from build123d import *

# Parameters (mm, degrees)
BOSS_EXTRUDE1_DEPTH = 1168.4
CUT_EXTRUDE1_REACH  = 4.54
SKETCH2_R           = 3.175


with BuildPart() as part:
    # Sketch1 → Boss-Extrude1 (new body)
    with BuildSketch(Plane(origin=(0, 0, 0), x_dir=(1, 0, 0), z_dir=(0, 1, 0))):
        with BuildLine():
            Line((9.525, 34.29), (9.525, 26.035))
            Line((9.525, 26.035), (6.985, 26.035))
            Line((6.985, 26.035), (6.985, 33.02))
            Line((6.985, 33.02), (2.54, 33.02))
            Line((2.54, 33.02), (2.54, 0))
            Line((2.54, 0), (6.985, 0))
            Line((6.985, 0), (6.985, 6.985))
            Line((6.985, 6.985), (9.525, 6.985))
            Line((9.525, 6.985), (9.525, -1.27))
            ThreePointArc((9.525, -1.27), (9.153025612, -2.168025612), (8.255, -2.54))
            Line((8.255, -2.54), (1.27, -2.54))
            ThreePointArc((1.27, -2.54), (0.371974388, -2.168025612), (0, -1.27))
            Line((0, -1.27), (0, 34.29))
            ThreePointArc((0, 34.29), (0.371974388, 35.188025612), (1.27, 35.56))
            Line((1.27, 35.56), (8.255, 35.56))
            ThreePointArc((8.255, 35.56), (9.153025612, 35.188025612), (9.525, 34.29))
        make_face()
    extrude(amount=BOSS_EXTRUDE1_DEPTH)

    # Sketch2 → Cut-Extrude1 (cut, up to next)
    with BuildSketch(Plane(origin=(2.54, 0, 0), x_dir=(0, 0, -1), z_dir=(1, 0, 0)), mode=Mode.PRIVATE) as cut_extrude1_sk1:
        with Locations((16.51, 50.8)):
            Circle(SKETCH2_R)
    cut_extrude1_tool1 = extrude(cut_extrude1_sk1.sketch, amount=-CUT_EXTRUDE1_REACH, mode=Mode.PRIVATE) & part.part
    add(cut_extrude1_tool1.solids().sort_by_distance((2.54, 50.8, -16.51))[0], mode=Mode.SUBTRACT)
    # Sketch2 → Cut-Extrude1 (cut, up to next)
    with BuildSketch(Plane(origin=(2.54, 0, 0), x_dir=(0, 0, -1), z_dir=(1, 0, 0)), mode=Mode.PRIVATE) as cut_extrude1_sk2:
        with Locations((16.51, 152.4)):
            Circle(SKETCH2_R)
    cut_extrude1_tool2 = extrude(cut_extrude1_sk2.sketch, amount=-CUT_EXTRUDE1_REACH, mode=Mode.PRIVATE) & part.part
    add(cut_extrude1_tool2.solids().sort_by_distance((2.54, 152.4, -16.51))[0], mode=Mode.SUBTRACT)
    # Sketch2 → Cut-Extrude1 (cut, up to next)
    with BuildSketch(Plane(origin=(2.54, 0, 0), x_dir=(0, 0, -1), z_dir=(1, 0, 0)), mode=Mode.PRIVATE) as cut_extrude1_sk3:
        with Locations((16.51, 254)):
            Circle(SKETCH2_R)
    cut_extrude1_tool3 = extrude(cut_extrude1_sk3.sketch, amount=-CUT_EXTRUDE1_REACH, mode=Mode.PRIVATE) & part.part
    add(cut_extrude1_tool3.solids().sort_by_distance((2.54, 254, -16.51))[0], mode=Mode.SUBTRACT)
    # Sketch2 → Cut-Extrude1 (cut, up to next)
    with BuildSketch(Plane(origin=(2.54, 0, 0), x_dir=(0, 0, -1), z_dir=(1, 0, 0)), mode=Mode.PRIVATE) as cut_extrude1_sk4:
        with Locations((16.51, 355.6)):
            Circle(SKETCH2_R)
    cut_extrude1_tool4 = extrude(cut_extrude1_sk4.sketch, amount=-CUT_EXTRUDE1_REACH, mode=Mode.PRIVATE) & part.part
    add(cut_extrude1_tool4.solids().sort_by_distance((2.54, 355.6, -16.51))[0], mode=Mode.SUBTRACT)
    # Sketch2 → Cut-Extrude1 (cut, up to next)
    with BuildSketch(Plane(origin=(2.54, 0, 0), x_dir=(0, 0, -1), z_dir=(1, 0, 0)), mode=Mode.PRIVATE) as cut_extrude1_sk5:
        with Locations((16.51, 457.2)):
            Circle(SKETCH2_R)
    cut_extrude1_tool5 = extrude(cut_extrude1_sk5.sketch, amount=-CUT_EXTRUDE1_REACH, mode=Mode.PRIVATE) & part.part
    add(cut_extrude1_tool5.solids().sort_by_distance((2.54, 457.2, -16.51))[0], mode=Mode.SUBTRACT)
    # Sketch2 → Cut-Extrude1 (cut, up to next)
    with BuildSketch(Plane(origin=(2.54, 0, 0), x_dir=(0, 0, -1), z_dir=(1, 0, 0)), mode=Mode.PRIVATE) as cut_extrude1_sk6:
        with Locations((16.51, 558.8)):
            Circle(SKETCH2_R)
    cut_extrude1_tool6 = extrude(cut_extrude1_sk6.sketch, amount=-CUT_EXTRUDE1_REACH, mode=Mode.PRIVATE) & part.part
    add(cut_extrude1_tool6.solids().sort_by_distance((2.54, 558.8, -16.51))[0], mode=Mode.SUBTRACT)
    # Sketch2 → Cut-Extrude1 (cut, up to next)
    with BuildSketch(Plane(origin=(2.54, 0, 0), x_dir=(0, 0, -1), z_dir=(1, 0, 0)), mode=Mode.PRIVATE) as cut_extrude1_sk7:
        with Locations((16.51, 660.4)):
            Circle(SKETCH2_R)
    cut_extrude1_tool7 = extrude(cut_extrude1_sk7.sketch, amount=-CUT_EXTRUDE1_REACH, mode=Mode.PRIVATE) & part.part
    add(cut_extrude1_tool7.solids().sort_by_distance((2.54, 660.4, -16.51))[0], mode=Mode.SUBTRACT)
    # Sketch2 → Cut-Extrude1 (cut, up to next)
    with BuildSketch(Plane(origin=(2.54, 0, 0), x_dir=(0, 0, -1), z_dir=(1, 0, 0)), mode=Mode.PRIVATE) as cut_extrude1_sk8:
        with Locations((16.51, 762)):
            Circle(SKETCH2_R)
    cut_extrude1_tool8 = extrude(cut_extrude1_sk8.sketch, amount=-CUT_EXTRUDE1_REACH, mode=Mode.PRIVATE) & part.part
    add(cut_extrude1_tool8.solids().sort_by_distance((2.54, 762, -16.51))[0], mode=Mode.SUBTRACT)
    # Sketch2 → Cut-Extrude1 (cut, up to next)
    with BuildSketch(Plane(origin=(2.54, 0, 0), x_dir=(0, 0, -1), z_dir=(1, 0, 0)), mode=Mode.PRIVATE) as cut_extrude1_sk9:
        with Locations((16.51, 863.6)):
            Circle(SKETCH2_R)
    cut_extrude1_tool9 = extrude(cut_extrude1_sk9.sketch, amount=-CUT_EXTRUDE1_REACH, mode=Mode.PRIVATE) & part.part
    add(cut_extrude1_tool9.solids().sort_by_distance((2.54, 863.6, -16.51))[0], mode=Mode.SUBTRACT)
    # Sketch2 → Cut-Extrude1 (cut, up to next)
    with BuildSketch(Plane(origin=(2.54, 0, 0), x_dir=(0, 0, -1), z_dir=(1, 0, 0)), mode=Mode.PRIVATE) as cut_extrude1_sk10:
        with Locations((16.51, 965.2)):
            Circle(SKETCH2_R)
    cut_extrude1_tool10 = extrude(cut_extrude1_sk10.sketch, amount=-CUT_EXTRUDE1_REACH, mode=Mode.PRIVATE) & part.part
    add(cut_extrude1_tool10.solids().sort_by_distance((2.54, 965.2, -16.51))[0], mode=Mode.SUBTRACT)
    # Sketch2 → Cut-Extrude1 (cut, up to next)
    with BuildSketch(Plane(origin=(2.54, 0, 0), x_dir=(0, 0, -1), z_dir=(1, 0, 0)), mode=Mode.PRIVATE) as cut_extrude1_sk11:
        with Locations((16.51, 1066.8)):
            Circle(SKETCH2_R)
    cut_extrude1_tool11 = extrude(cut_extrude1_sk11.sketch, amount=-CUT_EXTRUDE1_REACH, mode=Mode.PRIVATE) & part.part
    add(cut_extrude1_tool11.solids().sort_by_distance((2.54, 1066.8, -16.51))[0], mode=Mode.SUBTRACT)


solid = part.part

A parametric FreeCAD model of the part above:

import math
import FreeCAD as App
import Part
import Sketcher

V = App.Vector
Q = App.Units.Quantity

doc = App.newDocument("Part")
params = doc.addObject("Spreadsheet::Sheet", "Params")
for row, (alias, value) in enumerate([
    ("sketch1_radius", "0.05 in"),
    ("sketch1_width", "0.1 in"),
    ("sketch1_height", "1.4 in"),
    ("sketch1_height2", "1.3 in"),
    ("sketch1_width2", "0.275 in"),
    ("pad1_length", "46 in"),
    ("sketch2_diameter", "0.25 in"),
    ("sketch3_diameter", "0.25 in"),
    ("sketch4_diameter", "0.25 in"),
    ("sketch5_diameter", "0.25 in"),
    ("sketch6_diameter", "0.25 in"),
    ("sketch7_diameter", "0.25 in"),
    ("sketch8_diameter", "0.25 in"),
    ("sketch9_diameter", "0.25 in"),
    ("sketch10_diameter", "0.25 in"),
    ("sketch11_diameter", "0.25 in"),
    ("sketch12_diameter", "0.25 in"),
], start=1):
    params.set(f"A{row}", alias)
    params.set(f"B{row}", "=" + value)
    params.setAlias(f"B{row}", alias)

body = doc.addObject("PartDesign::Body", "Body")

# Sketch on XZ plane
sketch1 = body.newObject("Sketcher::SketchObject", "Sketch")
sketch1.AttachmentSupport = (doc.getObject("XZ_Plane"), [""])
sketch1.MapMode = "FlatFace"
sketch1.addGeometry(Part.LineSegment(V(9.525, -26.035, 0), V(9.525, -34.29, 0)), False)
sketch1.addGeometry(Part.ArcOfCircle(Part.Circle(V(8.255, -34.29, 0), V(0, 0, 1), 1.27), math.radians(-90), math.radians(0)), False)
sketch1.addGeometry(Part.LineSegment(V(8.255, -35.56, 0), V(1.27, -35.56, 0)), False)
sketch1.addGeometry(Part.ArcOfCircle(Part.Circle(V(1.27, -34.29, 0), V(0, 0, 1), 1.27), math.radians(180), math.radians(270)), False)
sketch1.addGeometry(Part.LineSegment(V(0, -34.29, 0), V(0, 1.27, 0)), False)
sketch1.addGeometry(Part.ArcOfCircle(Part.Circle(V(1.27, 1.27, 0), V(0, 0, 1), 1.27), math.radians(90), math.radians(180)), False)
sketch1.addGeometry(Part.LineSegment(V(1.27, 2.54, 0), V(8.255, 2.54, 0)), False)
sketch1.addGeometry(Part.ArcOfCircle(Part.Circle(V(8.255, 1.27, 0), V(0, 0, 1), 1.27), math.radians(0), math.radians(90)), False)
sketch1.addGeometry(Part.LineSegment(V(9.525, 1.27, 0), V(9.525, -6.985, 0)), False)
sketch1.addGeometry(Part.LineSegment(V(9.525, -6.985, 0), V(6.985, -6.985, 0)), False)
sketch1.addGeometry(Part.LineSegment(V(6.985, -6.985, 0), V(6.985, 0, 0)), False)
sketch1.addGeometry(Part.LineSegment(V(6.985, 0, 0), V(2.54, 0, 0)), False)
sketch1.addGeometry(Part.LineSegment(V(2.54, 0, 0), V(2.54, -33.02, 0)), False)
sketch1.addGeometry(Part.LineSegment(V(2.54, -33.02, 0), V(6.985, -33.02, 0)), False)
sketch1.addGeometry(Part.LineSegment(V(6.985, -33.02, 0), V(6.985, -26.035, 0)), False)
sketch1.addGeometry(Part.LineSegment(V(6.985, -26.035, 0), V(9.525, -26.035, 0)), False)
sketch1.addConstraint(Sketcher.Constraint("Tangent", 0, 2, 1, 2))
sketch1.addConstraint(Sketcher.Constraint("Tangent", 1, 1, 2, 1))
sketch1.addConstraint(Sketcher.Constraint("Tangent", 2, 2, 3, 2))
sketch1.addConstraint(Sketcher.Constraint("Tangent", 3, 1, 4, 1))
sketch1.addConstraint(Sketcher.Constraint("Tangent", 4, 2, 5, 2))
sketch1.addConstraint(Sketcher.Constraint("Tangent", 5, 1, 6, 1))
sketch1.addConstraint(Sketcher.Constraint("Tangent", 6, 2, 7, 2))
sketch1.addConstraint(Sketcher.Constraint("Tangent", 7, 1, 8, 1))
sketch1.addConstraint(Sketcher.Constraint("Coincident", 8, 2, 9, 1))
sketch1.addConstraint(Sketcher.Constraint("Coincident", 9, 2, 10, 1))
sketch1.addConstraint(Sketcher.Constraint("Coincident", 10, 2, 11, 1))
sketch1.addConstraint(Sketcher.Constraint("Coincident", 11, 2, 12, 1))
sketch1.addConstraint(Sketcher.Constraint("Coincident", 12, 2, 13, 1))
sketch1.addConstraint(Sketcher.Constraint("Coincident", 13, 2, 14, 1))
sketch1.addConstraint(Sketcher.Constraint("Coincident", 14, 2, 15, 1))
sketch1.addConstraint(Sketcher.Constraint("Coincident", 15, 2, 0, 1))
sketch1.addConstraint(Sketcher.Constraint("Vertical", 0))
sketch1.addConstraint(Sketcher.Constraint("Horizontal", 2))
sketch1.addConstraint(Sketcher.Constraint("Vertical", 4))
sketch1.addConstraint(Sketcher.Constraint("Horizontal", 6))
sketch1.addConstraint(Sketcher.Constraint("Vertical", 8))
sketch1.addConstraint(Sketcher.Constraint("Horizontal", 9))
sketch1.addConstraint(Sketcher.Constraint("Vertical", 10))
sketch1.addConstraint(Sketcher.Constraint("Horizontal", 11))
sketch1.addConstraint(Sketcher.Constraint("Vertical", 12))
sketch1.addConstraint(Sketcher.Constraint("Horizontal", 13))
sketch1.addConstraint(Sketcher.Constraint("Vertical", 14))
sketch1.addConstraint(Sketcher.Constraint("Horizontal", 15))
sketch1.addConstraint(Sketcher.Constraint("Equal", 1, 3))
sketch1.addConstraint(Sketcher.Constraint("Equal", 3, 5))
sketch1.addConstraint(Sketcher.Constraint("Equal", 5, 7))
sketch1.addConstraint(Sketcher.Constraint("PointOnObject", 3, 1, -2))
sketch1.addConstraint(Sketcher.Constraint("PointOnObject", 10, 2, -1))
sketch1.addConstraint(Sketcher.Constraint("Vertical", 1, 3, 7, 3))
sketch1.addConstraint(Sketcher.Constraint("Vertical", 10, 2, 13, 2))
sketch1.addConstraint(Sketcher.Constraint("Equal", 0, 8))
sketch1.addConstraint(Sketcher.Constraint("Equal", 6, 10))
sketch1.addConstraint(Sketcher.Constraint("Equal", 10, 14))
sketch1.addConstraint(Sketcher.Constraint("Radius", 1, Q("0.05 in")))
sketch1.addConstraint(Sketcher.Constraint("DistanceX", 9, 2, 9, 1, Q("0.1 in")))
sketch1.addConstraint(Sketcher.Constraint("DistanceY", 4, 1, 4, 2, Q("1.4 in")))
sketch1.addConstraint(Sketcher.Constraint("DistanceY", 12, 2, 12, 1, Q("1.3 in")))
sketch1.addConstraint(Sketcher.Constraint("DistanceX", -1, 1, 11, 2, Q("0.1 in")))
sketch1.addConstraint(Sketcher.Constraint("DistanceX", 2, 2, 2, 1, Q("0.275 in")))
sketch1.setExpression("Constraints[38]", "Params.sketch1_radius")
sketch1.setExpression("Constraints[39]", "Params.sketch1_width")
sketch1.setExpression("Constraints[40]", "Params.sketch1_height")
sketch1.setExpression("Constraints[41]", "Params.sketch1_height2")
sketch1.setExpression("Constraints[43]", "Params.sketch1_width2")
pad1 = body.newObject("PartDesign::Pad", "Pad")
pad1.Profile = sketch1
pad1.setExpression("Length", "Params.pad1_length")
pad1.Reversed = True

# Sketch on YZ plane
sketch2 = body.newObject("Sketcher::SketchObject", "Sketch001")
sketch2.AttachmentSupport = (doc.getObject("YZ_Plane"), [""])
sketch2.MapMode = "FlatFace"
sketch2.AttachmentOffset = App.Placement(V(0, 0, 0.1 * 25.4), App.Rotation())
sketch2.addGeometry(Part.Circle(V(50.8, -16.51, 0), V(0, 0, 1), 3.175), False)
sketch2.addConstraint(Sketcher.Constraint("Diameter", 0, Q("0.25 in")))
sketch2.addConstraint(Sketcher.Constraint("DistanceX", -1, 1, 0, 3, Q("2 in")))
sketch2.addConstraint(Sketcher.Constraint("DistanceY", 0, 3, -1, 1, Q("0.65 in")))
sketch2.setExpression("Constraints[0]", "Params.sketch2_diameter")
pocket1 = body.newObject("PartDesign::Pocket", "Pocket")
pocket1.Profile = sketch2
pocket1.Type = "UpToFirst"

# Sketch on YZ plane
sketch3 = body.newObject("Sketcher::SketchObject", "Sketch002")
sketch3.AttachmentSupport = (doc.getObject("YZ_Plane"), [""])
sketch3.MapMode = "FlatFace"
sketch3.AttachmentOffset = App.Placement(V(0, 0, 0.1 * 25.4), App.Rotation())
sketch3.addGeometry(Part.Circle(V(152.4, -16.51, 0), V(0, 0, 1), 3.175), False)
sketch3.addConstraint(Sketcher.Constraint("Diameter", 0, Q("0.25 in")))
sketch3.addConstraint(Sketcher.Constraint("DistanceX", -1, 1, 0, 3, Q("6 in")))
sketch3.addConstraint(Sketcher.Constraint("DistanceY", 0, 3, -1, 1, Q("0.65 in")))
sketch3.setExpression("Constraints[0]", "Params.sketch3_diameter")
pocket2 = body.newObject("PartDesign::Pocket", "Pocket001")
pocket2.Profile = sketch3
pocket2.Type = "UpToFirst"

# Sketch on YZ plane
sketch4 = body.newObject("Sketcher::SketchObject", "Sketch003")
sketch4.AttachmentSupport = (doc.getObject("YZ_Plane"), [""])
sketch4.MapMode = "FlatFace"
sketch4.AttachmentOffset = App.Placement(V(0, 0, 0.1 * 25.4), App.Rotation())
sketch4.addGeometry(Part.Circle(V(254, -16.51, 0), V(0, 0, 1), 3.175), False)
sketch4.addConstraint(Sketcher.Constraint("Diameter", 0, Q("0.25 in")))
sketch4.addConstraint(Sketcher.Constraint("DistanceX", -1, 1, 0, 3, Q("10 in")))
sketch4.addConstraint(Sketcher.Constraint("DistanceY", 0, 3, -1, 1, Q("0.65 in")))
sketch4.setExpression("Constraints[0]", "Params.sketch4_diameter")
pocket3 = body.newObject("PartDesign::Pocket", "Pocket002")
pocket3.Profile = sketch4
pocket3.Type = "UpToFirst"

# Sketch on YZ plane
sketch5 = body.newObject("Sketcher::SketchObject", "Sketch004")
sketch5.AttachmentSupport = (doc.getObject("YZ_Plane"), [""])
sketch5.MapMode = "FlatFace"
sketch5.AttachmentOffset = App.Placement(V(0, 0, 0.1 * 25.4), App.Rotation())
sketch5.addGeometry(Part.Circle(V(355.6, -16.51, 0), V(0, 0, 1), 3.175), False)
sketch5.addConstraint(Sketcher.Constraint("Diameter", 0, Q("0.25 in")))
sketch5.addConstraint(Sketcher.Constraint("DistanceX", -1, 1, 0, 3, Q("14 in")))
sketch5.addConstraint(Sketcher.Constraint("DistanceY", 0, 3, -1, 1, Q("0.65 in")))
sketch5.setExpression("Constraints[0]", "Params.sketch5_diameter")
pocket4 = body.newObject("PartDesign::Pocket", "Pocket003")
pocket4.Profile = sketch5
pocket4.Type = "UpToFirst"

# Sketch on YZ plane
sketch6 = body.newObject("Sketcher::SketchObject", "Sketch005")
sketch6.AttachmentSupport = (doc.getObject("YZ_Plane"), [""])
sketch6.MapMode = "FlatFace"
sketch6.AttachmentOffset = App.Placement(V(0, 0, 0.1 * 25.4), App.Rotation())
sketch6.addGeometry(Part.Circle(V(457.2, -16.51, 0), V(0, 0, 1), 3.175), False)
sketch6.addConstraint(Sketcher.Constraint("Diameter", 0, Q("0.25 in")))
sketch6.addConstraint(Sketcher.Constraint("DistanceX", -1, 1, 0, 3, Q("18 in")))
sketch6.addConstraint(Sketcher.Constraint("DistanceY", 0, 3, -1, 1, Q("0.65 in")))
sketch6.setExpression("Constraints[0]", "Params.sketch6_diameter")
pocket5 = body.newObject("PartDesign::Pocket", "Pocket004")
pocket5.Profile = sketch6
pocket5.Type = "UpToFirst"

# Sketch on YZ plane
sketch7 = body.newObject("Sketcher::SketchObject", "Sketch006")
sketch7.AttachmentSupport = (doc.getObject("YZ_Plane"), [""])
sketch7.MapMode = "FlatFace"
sketch7.AttachmentOffset = App.Placement(V(0, 0, 0.1 * 25.4), App.Rotation())
sketch7.addGeometry(Part.Circle(V(558.8, -16.51, 0), V(0, 0, 1), 3.175), False)
sketch7.addConstraint(Sketcher.Constraint("Diameter", 0, Q("0.25 in")))
sketch7.addConstraint(Sketcher.Constraint("DistanceX", -1, 1, 0, 3, Q("22 in")))
sketch7.addConstraint(Sketcher.Constraint("DistanceY", 0, 3, -1, 1, Q("0.65 in")))
sketch7.setExpression("Constraints[0]", "Params.sketch7_diameter")
pocket6 = body.newObject("PartDesign::Pocket", "Pocket005")
pocket6.Profile = sketch7
pocket6.Type = "UpToFirst"

# Sketch on YZ plane
sketch8 = body.newObject("Sketcher::SketchObject", "Sketch007")
sketch8.AttachmentSupport = (doc.getObject("YZ_Plane"), [""])
sketch8.MapMode = "FlatFace"
sketch8.AttachmentOffset = App.Placement(V(0, 0, 0.1 * 25.4), App.Rotation())
sketch8.addGeometry(Part.Circle(V(660.4, -16.51, 0), V(0, 0, 1), 3.175), False)
sketch8.addConstraint(Sketcher.Constraint("Diameter", 0, Q("0.25 in")))
sketch8.addConstraint(Sketcher.Constraint("DistanceX", -1, 1, 0, 3, Q("26 in")))
sketch8.addConstraint(Sketcher.Constraint("DistanceY", 0, 3, -1, 1, Q("0.65 in")))
sketch8.setExpression("Constraints[0]", "Params.sketch8_diameter")
pocket7 = body.newObject("PartDesign::Pocket", "Pocket006")
pocket7.Profile = sketch8
pocket7.Type = "UpToFirst"

# Sketch on YZ plane
sketch9 = body.newObject("Sketcher::SketchObject", "Sketch008")
sketch9.AttachmentSupport = (doc.getObject("YZ_Plane"), [""])
sketch9.MapMode = "FlatFace"
sketch9.AttachmentOffset = App.Placement(V(0, 0, 0.1 * 25.4), App.Rotation())
sketch9.addGeometry(Part.Circle(V(762, -16.51, 0), V(0, 0, 1), 3.175), False)
sketch9.addConstraint(Sketcher.Constraint("Diameter", 0, Q("0.25 in")))
sketch9.addConstraint(Sketcher.Constraint("DistanceX", -1, 1, 0, 3, Q("30 in")))
sketch9.addConstraint(Sketcher.Constraint("DistanceY", 0, 3, -1, 1, Q("0.65 in")))
sketch9.setExpression("Constraints[0]", "Params.sketch9_diameter")
pocket8 = body.newObject("PartDesign::Pocket", "Pocket007")
pocket8.Profile = sketch9
pocket8.Type = "UpToFirst"

# Sketch on YZ plane
sketch10 = body.newObject("Sketcher::SketchObject", "Sketch009")
sketch10.AttachmentSupport = (doc.getObject("YZ_Plane"), [""])
sketch10.MapMode = "FlatFace"
sketch10.AttachmentOffset = App.Placement(V(0, 0, 0.1 * 25.4), App.Rotation())
sketch10.addGeometry(Part.Circle(V(863.6, -16.51, 0), V(0, 0, 1), 3.175), False)
sketch10.addConstraint(Sketcher.Constraint("Diameter", 0, Q("0.25 in")))
sketch10.addConstraint(Sketcher.Constraint("DistanceX", -1, 1, 0, 3, Q("34 in")))
sketch10.addConstraint(Sketcher.Constraint("DistanceY", 0, 3, -1, 1, Q("0.65 in")))
sketch10.setExpression("Constraints[0]", "Params.sketch10_diameter")
pocket9 = body.newObject("PartDesign::Pocket", "Pocket008")
pocket9.Profile = sketch10
pocket9.Type = "UpToFirst"

# Sketch on YZ plane
sketch11 = body.newObject("Sketcher::SketchObject", "Sketch010")
sketch11.AttachmentSupport = (doc.getObject("YZ_Plane"), [""])
sketch11.MapMode = "FlatFace"
sketch11.AttachmentOffset = App.Placement(V(0, 0, 0.1 * 25.4), App.Rotation())
sketch11.addGeometry(Part.Circle(V(965.2, -16.51, 0), V(0, 0, 1), 3.175), False)
sketch11.addConstraint(Sketcher.Constraint("Diameter", 0, Q("0.25 in")))
sketch11.addConstraint(Sketcher.Constraint("DistanceX", -1, 1, 0, 3, Q("38 in")))
sketch11.addConstraint(Sketcher.Constraint("DistanceY", 0, 3, -1, 1, Q("0.65 in")))
sketch11.setExpression("Constraints[0]", "Params.sketch11_diameter")
pocket10 = body.newObject("PartDesign::Pocket", "Pocket009")
pocket10.Profile = sketch11
pocket10.Type = "UpToFirst"

# Sketch on YZ plane
sketch12 = body.newObject("Sketcher::SketchObject", "Sketch011")
sketch12.AttachmentSupport = (doc.getObject("YZ_Plane"), [""])
sketch12.MapMode = "FlatFace"
sketch12.AttachmentOffset = App.Placement(V(0, 0, 0.1 * 25.4), App.Rotation())
sketch12.addGeometry(Part.Circle(V(1066.8, -16.51, 0), V(0, 0, 1), 3.175), False)
sketch12.addConstraint(Sketcher.Constraint("Diameter", 0, Q("0.25 in")))
sketch12.addConstraint(Sketcher.Constraint("DistanceX", -1, 1, 0, 3, Q("42 in")))
sketch12.addConstraint(Sketcher.Constraint("DistanceY", 0, 3, -1, 1, Q("0.65 in")))
sketch12.setExpression("Constraints[0]", "Params.sketch12_diameter")
pocket11 = body.newObject("PartDesign::Pocket", "Pocket010")
pocket11.Profile = sketch12
pocket11.Type = "UpToFirst"

doc.recompute()
